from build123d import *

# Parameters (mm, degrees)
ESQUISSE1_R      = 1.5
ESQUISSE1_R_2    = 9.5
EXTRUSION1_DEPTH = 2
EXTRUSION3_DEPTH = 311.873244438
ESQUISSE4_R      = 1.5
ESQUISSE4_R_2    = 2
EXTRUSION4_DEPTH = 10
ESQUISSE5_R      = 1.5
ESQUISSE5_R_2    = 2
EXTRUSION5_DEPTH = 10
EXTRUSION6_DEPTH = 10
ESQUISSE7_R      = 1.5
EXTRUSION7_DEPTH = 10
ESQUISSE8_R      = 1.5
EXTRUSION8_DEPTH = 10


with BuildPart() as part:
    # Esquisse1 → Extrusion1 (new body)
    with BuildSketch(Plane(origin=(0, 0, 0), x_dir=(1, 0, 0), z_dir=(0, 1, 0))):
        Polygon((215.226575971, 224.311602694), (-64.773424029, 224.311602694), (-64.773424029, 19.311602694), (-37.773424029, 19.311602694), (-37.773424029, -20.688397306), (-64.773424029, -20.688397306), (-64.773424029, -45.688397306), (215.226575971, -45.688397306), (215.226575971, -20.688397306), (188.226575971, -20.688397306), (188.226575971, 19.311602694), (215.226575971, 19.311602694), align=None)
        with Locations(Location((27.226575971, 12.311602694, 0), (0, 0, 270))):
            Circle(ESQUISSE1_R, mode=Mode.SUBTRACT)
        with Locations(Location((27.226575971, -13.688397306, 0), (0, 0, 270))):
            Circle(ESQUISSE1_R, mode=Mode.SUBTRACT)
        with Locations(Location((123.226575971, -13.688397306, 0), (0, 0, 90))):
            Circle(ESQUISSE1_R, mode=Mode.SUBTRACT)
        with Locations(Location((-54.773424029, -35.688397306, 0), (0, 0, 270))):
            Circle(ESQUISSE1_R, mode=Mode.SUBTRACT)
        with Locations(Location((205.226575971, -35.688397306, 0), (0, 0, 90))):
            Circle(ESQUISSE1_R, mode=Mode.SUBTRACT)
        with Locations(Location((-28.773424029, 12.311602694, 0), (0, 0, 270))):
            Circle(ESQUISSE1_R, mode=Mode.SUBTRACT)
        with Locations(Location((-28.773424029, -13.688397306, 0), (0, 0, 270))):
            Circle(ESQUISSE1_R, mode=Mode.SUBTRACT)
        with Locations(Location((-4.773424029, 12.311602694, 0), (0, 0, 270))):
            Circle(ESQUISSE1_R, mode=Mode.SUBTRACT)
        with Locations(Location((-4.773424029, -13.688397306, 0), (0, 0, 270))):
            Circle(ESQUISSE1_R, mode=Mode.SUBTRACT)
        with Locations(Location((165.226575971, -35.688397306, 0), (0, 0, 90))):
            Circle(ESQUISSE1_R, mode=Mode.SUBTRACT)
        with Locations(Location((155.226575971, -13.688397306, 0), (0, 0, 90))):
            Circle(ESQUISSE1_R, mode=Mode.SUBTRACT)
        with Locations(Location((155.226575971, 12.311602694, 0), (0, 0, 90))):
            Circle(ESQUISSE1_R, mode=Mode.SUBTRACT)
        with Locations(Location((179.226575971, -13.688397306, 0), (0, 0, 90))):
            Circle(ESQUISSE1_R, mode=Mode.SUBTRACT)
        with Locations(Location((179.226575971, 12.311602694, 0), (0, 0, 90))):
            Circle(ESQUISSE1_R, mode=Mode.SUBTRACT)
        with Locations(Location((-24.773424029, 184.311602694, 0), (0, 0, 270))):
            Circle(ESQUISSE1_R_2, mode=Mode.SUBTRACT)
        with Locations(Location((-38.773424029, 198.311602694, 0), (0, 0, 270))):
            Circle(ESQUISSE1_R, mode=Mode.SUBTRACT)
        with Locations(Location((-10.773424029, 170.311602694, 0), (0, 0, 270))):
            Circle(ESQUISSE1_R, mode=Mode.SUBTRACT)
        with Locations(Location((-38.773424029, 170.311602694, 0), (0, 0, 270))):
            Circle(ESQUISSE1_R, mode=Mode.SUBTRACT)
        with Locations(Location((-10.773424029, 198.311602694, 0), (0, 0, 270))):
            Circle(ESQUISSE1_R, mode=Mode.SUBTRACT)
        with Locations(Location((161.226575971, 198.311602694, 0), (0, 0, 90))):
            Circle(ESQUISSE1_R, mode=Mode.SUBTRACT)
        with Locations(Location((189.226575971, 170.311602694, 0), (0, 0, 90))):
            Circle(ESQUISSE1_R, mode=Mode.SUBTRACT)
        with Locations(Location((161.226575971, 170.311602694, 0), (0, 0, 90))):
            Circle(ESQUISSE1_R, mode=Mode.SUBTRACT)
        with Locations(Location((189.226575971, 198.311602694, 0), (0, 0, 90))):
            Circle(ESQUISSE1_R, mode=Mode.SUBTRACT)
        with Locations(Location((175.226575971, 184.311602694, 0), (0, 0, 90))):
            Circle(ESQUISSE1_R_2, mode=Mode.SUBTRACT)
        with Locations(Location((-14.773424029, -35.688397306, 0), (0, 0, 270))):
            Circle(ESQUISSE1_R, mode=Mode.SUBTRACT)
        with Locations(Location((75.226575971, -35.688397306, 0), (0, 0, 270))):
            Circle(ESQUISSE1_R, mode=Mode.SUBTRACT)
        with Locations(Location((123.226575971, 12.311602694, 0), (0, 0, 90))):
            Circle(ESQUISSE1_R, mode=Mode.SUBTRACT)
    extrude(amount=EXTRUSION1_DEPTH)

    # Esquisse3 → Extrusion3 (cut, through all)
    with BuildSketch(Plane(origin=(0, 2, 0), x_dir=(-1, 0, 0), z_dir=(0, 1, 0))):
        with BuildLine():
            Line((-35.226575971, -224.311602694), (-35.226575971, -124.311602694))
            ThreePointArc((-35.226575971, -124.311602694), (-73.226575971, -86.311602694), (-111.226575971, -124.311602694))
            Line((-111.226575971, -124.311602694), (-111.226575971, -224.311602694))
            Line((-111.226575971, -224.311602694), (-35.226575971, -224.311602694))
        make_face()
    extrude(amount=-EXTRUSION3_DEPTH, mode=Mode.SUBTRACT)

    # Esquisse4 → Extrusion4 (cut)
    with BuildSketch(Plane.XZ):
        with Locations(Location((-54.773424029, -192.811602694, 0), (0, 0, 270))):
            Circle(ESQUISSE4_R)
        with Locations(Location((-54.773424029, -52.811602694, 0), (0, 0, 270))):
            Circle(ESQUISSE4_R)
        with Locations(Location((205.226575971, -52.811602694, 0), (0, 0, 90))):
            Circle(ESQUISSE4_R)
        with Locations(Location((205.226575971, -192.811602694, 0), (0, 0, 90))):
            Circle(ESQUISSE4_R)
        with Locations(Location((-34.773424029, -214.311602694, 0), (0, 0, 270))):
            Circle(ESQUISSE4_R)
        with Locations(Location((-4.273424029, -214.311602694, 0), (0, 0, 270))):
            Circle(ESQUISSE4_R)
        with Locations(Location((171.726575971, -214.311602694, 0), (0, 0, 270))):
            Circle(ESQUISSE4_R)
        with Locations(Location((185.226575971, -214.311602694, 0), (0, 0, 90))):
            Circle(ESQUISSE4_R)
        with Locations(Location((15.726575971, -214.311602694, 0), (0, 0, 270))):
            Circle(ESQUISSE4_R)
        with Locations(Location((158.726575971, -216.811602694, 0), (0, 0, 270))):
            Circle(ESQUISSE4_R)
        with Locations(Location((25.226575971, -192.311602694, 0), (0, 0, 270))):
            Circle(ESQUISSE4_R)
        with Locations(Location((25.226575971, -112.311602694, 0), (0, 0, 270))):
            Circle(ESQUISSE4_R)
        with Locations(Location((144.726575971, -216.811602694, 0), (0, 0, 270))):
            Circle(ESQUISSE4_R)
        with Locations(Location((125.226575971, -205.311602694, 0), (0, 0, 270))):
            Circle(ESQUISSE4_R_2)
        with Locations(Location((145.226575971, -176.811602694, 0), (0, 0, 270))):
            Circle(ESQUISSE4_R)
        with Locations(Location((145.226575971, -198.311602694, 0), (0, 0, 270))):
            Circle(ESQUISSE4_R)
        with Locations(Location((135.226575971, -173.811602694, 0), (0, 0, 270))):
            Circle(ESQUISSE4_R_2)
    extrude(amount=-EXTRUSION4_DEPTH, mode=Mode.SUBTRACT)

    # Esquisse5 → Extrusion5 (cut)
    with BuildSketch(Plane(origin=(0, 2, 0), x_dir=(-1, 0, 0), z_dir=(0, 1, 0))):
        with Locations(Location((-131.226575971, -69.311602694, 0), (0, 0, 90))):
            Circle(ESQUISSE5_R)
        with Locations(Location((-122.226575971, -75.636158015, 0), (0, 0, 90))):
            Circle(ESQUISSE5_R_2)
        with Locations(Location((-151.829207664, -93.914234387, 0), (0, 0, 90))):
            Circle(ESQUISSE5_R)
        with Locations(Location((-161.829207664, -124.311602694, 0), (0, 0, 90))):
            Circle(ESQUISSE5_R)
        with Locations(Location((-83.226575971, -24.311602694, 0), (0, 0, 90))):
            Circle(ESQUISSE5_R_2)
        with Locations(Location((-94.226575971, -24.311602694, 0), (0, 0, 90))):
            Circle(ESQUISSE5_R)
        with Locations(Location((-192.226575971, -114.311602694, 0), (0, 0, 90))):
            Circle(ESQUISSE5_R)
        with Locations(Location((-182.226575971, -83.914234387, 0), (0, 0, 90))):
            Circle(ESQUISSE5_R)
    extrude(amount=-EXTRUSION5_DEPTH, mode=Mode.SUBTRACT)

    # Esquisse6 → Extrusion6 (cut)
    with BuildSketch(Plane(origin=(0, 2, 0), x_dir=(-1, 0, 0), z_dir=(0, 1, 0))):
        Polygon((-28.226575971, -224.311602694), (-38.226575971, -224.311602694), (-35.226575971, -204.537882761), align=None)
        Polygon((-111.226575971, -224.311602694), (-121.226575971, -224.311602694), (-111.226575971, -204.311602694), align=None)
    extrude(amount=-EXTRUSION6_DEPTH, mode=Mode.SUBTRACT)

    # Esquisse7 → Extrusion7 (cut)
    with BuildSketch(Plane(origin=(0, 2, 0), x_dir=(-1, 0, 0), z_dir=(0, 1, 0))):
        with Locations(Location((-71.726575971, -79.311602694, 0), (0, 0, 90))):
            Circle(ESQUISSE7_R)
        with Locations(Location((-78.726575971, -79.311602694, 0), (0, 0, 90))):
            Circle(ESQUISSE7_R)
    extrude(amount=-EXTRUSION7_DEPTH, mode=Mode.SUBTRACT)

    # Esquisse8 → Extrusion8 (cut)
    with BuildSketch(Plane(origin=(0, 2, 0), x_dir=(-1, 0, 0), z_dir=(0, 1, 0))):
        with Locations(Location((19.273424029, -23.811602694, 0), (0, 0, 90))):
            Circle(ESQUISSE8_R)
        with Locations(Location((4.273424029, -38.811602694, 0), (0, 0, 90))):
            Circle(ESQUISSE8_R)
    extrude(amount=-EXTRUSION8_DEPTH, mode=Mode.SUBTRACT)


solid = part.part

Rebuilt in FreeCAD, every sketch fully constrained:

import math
import FreeCAD as App
import Part
import Sketcher
from FreeCAD import Vector

doc = App.newDocument("Part")
body = doc.addObject("PartDesign::Body", "Body")

sketch1 = body.newObject("Sketcher::SketchObject", "Sketch")
sketch1.AttachmentSupport = (doc.getObject("XZ_Plane"), [""])
sketch1.MapMode = "FlatFace"
sketch1.addGeometry(Part.LineSegment(Vector(215.2, -224.3, 0), Vector(-64.8, -224.3, 0)), False)
sketch1.addGeometry(Part.LineSegment(Vector(-64.8, -224.3, 0), Vector(-64.8, -19.3, 0)), False)
sketch1.addGeometry(Part.LineSegment(Vector(-64.8, -19.3, 0), Vector(-37.8, -19.3, 0)), False)
sketch1.addGeometry(Part.LineSegment(Vector(-37.8, -19.3, 0), Vector(-37.8, 20.7, 0)), False)
sketch1.addGeometry(Part.LineSegment(Vector(-37.8, 20.7, 0), Vector(-64.8, 20.7, 0)), False)
sketch1.addGeometry(Part.LineSegment(Vector(-64.8, 20.7, 0), Vector(-64.8, 45.7, 0)), False)
sketch1.addGeometry(Part.LineSegment(Vector(-64.8, 45.7, 0), Vector(215.2, 45.7, 0)), False)
sketch1.addGeometry(Part.LineSegment(Vector(215.2, 45.7, 0), Vector(215.2, 20.7, 0)), False)
sketch1.addGeometry(Part.LineSegment(Vector(215.2, 20.7, 0), Vector(188.2, 20.7, 0)), False)
sketch1.addGeometry(Part.LineSegment(Vector(188.2, 20.7, 0), Vector(188.2, -19.3, 0)), False)
sketch1.addGeometry(Part.LineSegment(Vector(188.2, -19.3, 0), Vector(215.2, -19.3, 0)), False)
sketch1.addGeometry(Part.LineSegment(Vector(215.2, -19.3, 0), Vector(215.2, -224.3, 0)), False)
sketch1.addGeometry(Part.Circle(Vector(-54.8, 35.7, 0), Vector(0, 0, 1), 1.5), False)
sketch1.addGeometry(Part.Circle(Vector(-28.8, 13.7, 0), Vector(0, 0, 1), 1.5), False)
sketch1.addGeometry(Part.Circle(Vector(-14.8, 35.7, 0), Vector(0, 0, 1), 1.5), False)
sketch1.addGeometry(Part.Circle(Vector(-4.8, 13.7, 0), Vector(0, 0, 1), 1.5), False)
sketch1.addGeometry(Part.Circle(Vector(-28.8, -12.3, 0), Vector(0, 0, 1), 1.5), False)
sketch1.addGeometry(Part.Circle(Vector(-4.8, -12.3, 0), Vector(0, 0, 1), 1.5), False)
sketch1.addGeometry(Part.Circle(Vector(27.2, 13.7, 0), Vector(0, 0, 1), 1.5), False)
sketch1.addGeometry(Part.Circle(Vector(27.2, -12.3, 0), Vector(0, 0, 1), 1.5), False)
sketch1.addGeometry(Part.Circle(Vector(75.2, 35.7, 0), Vector(0, 0, 1), 1.5), False)
sketch1.addGeometry(Part.Circle(Vector(123.2, 13.7, 0), Vector(0, 0, 1), 1.5), False)
sketch1.addGeometry(Part.Circle(Vector(123.2, -12.3, 0), Vector(0, 0, 1), 1.5), False)
sketch1.addGeometry(Part.Circle(Vector(165.2, 35.7, 0), Vector(0, 0, 1), 1.5), False)
sketch1.addGeometry(Part.Circle(Vector(155.2, 13.7, 0), Vector(0, 0, 1), 1.5), False)
sketch1.addGeometry(Part.Circle(Vector(205.2, 35.7, 0), Vector(0, 0, 1), 1.5), False)
sketch1.addGeometry(Part.Circle(Vector(179.2, 13.7, 0), Vector(0, 0, 1), 1.5), False)
sketch1.addGeometry(Part.Circle(Vector(155.2, -12.3, 0), Vector(0, 0, 1), 1.5), False)
sketch1.addGeometry(Part.Circle(Vector(179.2, -12.3, 0), Vector(0, 0, 1), 1.5), False)
sketch1.addGeometry(Part.Circle(Vector(-38.8, -170.3, 0), Vector(0, 0, 1), 1.5), False)
sketch1.addGeometry(Part.Circle(Vector(-24.8, -184.3, 0), Vector(0, 0, 1), 9.5), False)
sketch1.addGeometry(Part.Circle(Vector(-38.8, -198.3, 0), Vector(0, 0, 1), 1.5), False)
sketch1.addGeometry(Part.Circle(Vector(-10.8, -170.3, 0), Vector(0, 0, 1), 1.5), False)
sketch1.addGeometry(Part.Circle(Vector(-10.8, -198.3, 0), Vector(0, 0, 1), 1.5), False)
sketch1.addGeometry(Part.Circle(Vector(161.2, -170.3, 0), Vector(0, 0, 1), 1.5), False)
sketch1.addGeometry(Part.Circle(Vector(161.2, -198.3, 0), Vector(0, 0, 1), 1.5), False)
sketch1.addGeometry(Part.Circle(Vector(189.2, -170.3, 0), Vector(0, 0, 1), 1.5), False)
sketch1.addGeometry(Part.Circle(Vector(175.2, -184.3, 0), Vector(0, 0, 1), 9.5), False)
sketch1.addGeometry(Part.Circle(Vector(189.2, -198.3, 0), Vector(0, 0, 1), 1.5), False)
sketch1.addConstraint(Sketcher.Constraint("Coincident", 0, 2, 1, 1))
sketch1.addConstraint(Sketcher.Constraint("Coincident", 1, 2, 2, 1))
sketch1.addConstraint(Sketcher.Constraint("Coincident", 2, 2, 3, 1))
sketch1.addConstraint(Sketcher.Constraint("Coincident", 3, 2, 4, 1))
sketch1.addConstraint(Sketcher.Constraint("Coincident", 4, 2, 5, 1))
sketch1.addConstraint(Sketcher.Constraint("Coincident", 5, 2, 6, 1))
sketch1.addConstraint(Sketcher.Constraint("Coincident", 6, 2, 7, 1))
sketch1.addConstraint(Sketcher.Constraint("Coincident", 7, 2, 8, 1))
sketch1.addConstraint(Sketcher.Constraint("Coincident", 8, 2, 9, 1))
sketch1.addConstraint(Sketcher.Constraint("Coincident", 9, 2, 10, 1))
sketch1.addConstraint(Sketcher.Constraint("Coincident", 10, 2, 11, 1))
sketch1.addConstraint(Sketcher.Constraint("Coincident", 11, 2, 0, 1))
sketch1.addConstraint(Sketcher.Constraint("Horizontal", 0))
sketch1.addConstraint(Sketcher.Constraint("Vertical", 1))
sketch1.addConstraint(Sketcher.Constraint("Horizontal", 2))
sketch1.addConstraint(Sketcher.Constraint("Vertical", 3))
sketch1.addConstraint(Sketcher.Constraint("Horizontal", 4))
sketch1.addConstraint(Sketcher.Constraint("Vertical", 5))
sketch1.addConstraint(Sketcher.Constraint("Horizontal", 6))
sketch1.addConstraint(Sketcher.Constraint("Vertical", 7))
sketch1.addConstraint(Sketcher.Constraint("Horizontal", 8))
sketch1.addConstraint(Sketcher.Constraint("Vertical", 9))
sketch1.addConstraint(Sketcher.Constraint("Horizontal", 10))
sketch1.addConstraint(Sketcher.Constraint("Vertical", 11))
sketch1.addConstraint(Sketcher.Constraint("Equal", 12, 13))
sketch1.addConstraint(Sketcher.Constraint("Equal", 13, 14))
sketch1.addConstraint(Sketcher.Constraint("Equal", 14, 15))
sketch1.addConstraint(Sketcher.Constraint("Equal", 15, 16))
sketch1.addConstraint(Sketcher.Constraint("Equal", 16, 17))
sketch1.addConstraint(Sketcher.Constraint("Equal", 17, 18))
sketch1.addConstraint(Sketcher.Constraint("Equal", 18, 19))
sketch1.addConstraint(Sketcher.Constraint("Equal", 19, 20))
sketch1.addConstraint(Sketcher.Constraint("Equal", 20, 21))
sketch1.addConstraint(Sketcher.Constraint("Equal", 21, 22))
sketch1.addConstraint(Sketcher.Constraint("Equal", 22, 23))
sketch1.addConstraint(Sketcher.Constraint("Equal", 23, 24))
sketch1.addConstraint(Sketcher.Constraint("Equal", 24, 25))
sketch1.addConstraint(Sketcher.Constraint("Equal", 25, 26))
sketch1.addConstraint(Sketcher.Constraint("Equal", 26, 27))
sketch1.addConstraint(Sketcher.Constraint("Equal", 27, 28))
sketch1.addConstraint(Sketcher.Constraint("Equal", 28, 29))
sketch1.addConstraint(Sketcher.Constraint("Equal", 29, 31))
sketch1.addConstraint(Sketcher.Constraint("Equal", 31, 32))
sketch1.addConstraint(Sketcher.Constraint("Equal", 32, 33))
sketch1.addConstraint(Sketcher.Constraint("Equal", 33, 34))
sketch1.addConstraint(Sketcher.Constraint("Equal", 34, 35))
sketch1.addConstraint(Sketcher.Constraint("Equal", 35, 36))
sketch1.addConstraint(Sketcher.Constraint("Equal", 30, 37))
sketch1.addConstraint(Sketcher.Constraint("Equal", 36, 38))
sketch1.addConstraint(Sketcher.Constraint("Horizontal", 12, 3, 14, 3))
sketch1.addConstraint(Sketcher.Constraint("Horizontal", 13, 3, 15, 3))
sketch1.addConstraint(Sketcher.Constraint("Horizontal", 16, 3, 17, 3))
sketch1.addConstraint(Sketcher.Constraint("Horizontal", 15, 3, 18, 3))
sketch1.addConstraint(Sketcher.Constraint("Horizontal", 17, 3, 19, 3))
sketch1.addConstraint(Sketcher.Constraint("Horizontal", 14, 3, 20, 3))
sketch1.addConstraint(Sketcher.Constraint("Horizontal", 18, 3, 21, 3))
sketch1.addConstraint(Sketcher.Constraint("Horizontal", 19, 3, 22, 3))
sketch1.addConstraint(Sketcher.Constraint("Horizontal", 20, 3, 23, 3))
sketch1.addConstraint(Sketcher.Constraint("Horizontal", 21, 3, 24, 3))
sketch1.addConstraint(Sketcher.Constraint("Horizontal", 23, 3, 25, 3))
sketch1.addConstraint(Sketcher.Constraint("Horizontal", 24, 3, 26, 3))
sketch1.addConstraint(Sketcher.Constraint("Horizontal", 22, 3, 27, 3))
sketch1.addConstraint(Sketcher.Constraint("Horizontal", 27, 3, 28, 3))
sketch1.addConstraint(Sketcher.Constraint("Horizontal", 29, 3, 32, 3))
sketch1.addConstraint(Sketcher.Constraint("Horizontal", 31, 3, 33, 3))
sketch1.addConstraint(Sketcher.Constraint("Horizontal", 32, 3, 34, 3))
sketch1.addConstraint(Sketcher.Constraint("Horizontal", 33, 3, 35, 3))
sketch1.addConstraint(Sketcher.Constraint("Horizontal", 34, 3, 36, 3))
sketch1.addConstraint(Sketcher.Constraint("Horizontal", 30, 3, 37, 3))
sketch1.addConstraint(Sketcher.Constraint("Horizontal", 35, 3, 38, 3))
sketch1.addConstraint(Sketcher.Constraint("Horizontal", 4, 2, 7, 2))
sketch1.addConstraint(Sketcher.Constraint("Horizontal", 2, 2, 9, 2))
sketch1.addConstraint(Sketcher.Constraint("Vertical", 13, 3, 16, 3))
sketch1.addConstraint(Sketcher.Constraint("Vertical", 15, 3, 17, 3))
sketch1.addConstraint(Sketcher.Constraint("Vertical", 18, 3, 19, 3))
sketch1.addConstraint(Sketcher.Constraint("Vertical", 21, 3, 22, 3))
sketch1.addConstraint(Sketcher.Constraint("Vertical", 24, 3, 27, 3))
sketch1.addConstraint(Sketcher.Constraint("Vertical", 26, 3, 28, 3))
sketch1.addConstraint(Sketcher.Constraint("Vertical", 29, 3, 31, 3))
sketch1.addConstraint(Sketcher.Constraint("Vertical", 32, 3, 33, 3))
sketch1.addConstraint(Sketcher.Constraint("Vertical", 34, 3, 35, 3))
sketch1.addConstraint(Sketcher.Constraint("Vertical", 36, 3, 38, 3))
sketch1.addConstraint(Sketcher.Constraint("Vertical", 1, 2, 4, 2))
sketch1.addConstraint(Sketcher.Constraint("Vertical", 7, 2, 10, 2))
sketch1.addConstraint(Sketcher.Constraint("Equal", 4, 8))
sketch1.addConstraint(Sketcher.Constraint("Diameter", 12, 3.0))
sketch1.addConstraint(Sketcher.Constraint("Diameter", 30, 19.0))
sketch1.addConstraint(Sketcher.Constraint("DistanceX", 0, 2, 0, 1, 280.0))
sketch1.addConstraint(Sketcher.Constraint("DistanceX", 2, 1, 2, 2, 27.0))
sketch1.addConstraint(Sketcher.Constraint("DistanceY", 1, 1, 1, 2, 205.0))
sketch1.addConstraint(Sketcher.Constraint("DistanceY", 3, 1, 3, 2, 40.0))
sketch1.addConstraint(Sketcher.Constraint("DistanceY", 5, 1, 5, 2, 25.0))
sketch1.addConstraint(Sketcher.Constraint("DistanceX", 12, 3, 13, 3, 26.0))
sketch1.addConstraint(Sketcher.Constraint("DistanceY", 13, 3, 12, 3, 22.0))
sketch1.addConstraint(Sketcher.Constraint("DistanceX", 13, 3, 14, 3, 14.0))
sketch1.addConstraint(Sketcher.Constraint("DistanceX", 13, 3, 15, 3, 24.0))
sketch1.addConstraint(Sketcher.Constraint("DistanceY", 16, 3, 13, 3, 26.0))
sketch1.addConstraint(Sketcher.Constraint("DistanceX", 15, 3, 18, 3, 32.0))
sketch1.addConstraint(Sketcher.Constraint("DistanceX", 18, 3, 20, 3, 48.0))
sketch1.addConstraint(Sketcher.Constraint("DistanceX", 20, 3, 21, 3, 48.0))
sketch1.addConstraint(Sketcher.Constraint("DistanceX", 21, 3, 23, 3, 42.0))
sketch1.addConstraint(Sketcher.Constraint("DistanceX", 24, 3, 23, 3, 10.0))
sketch1.addConstraint(Sketcher.Constraint("DistanceX", 23, 3, 25, 3, 40.0))
sketch1.addConstraint(Sketcher.Constraint("DistanceX", 24, 3, 26, 3, 24.0))
sketch1.addConstraint(Sketcher.Constraint("DistanceX", 29, 3, 16, 3, 10.0))
sketch1.addConstraint(Sketcher.Constraint("DistanceY", 29, 3, 16, 3, 158.0))
sketch1.addConstraint(Sketcher.Constraint("DistanceX", 29, 3, 30, 3, 14.0))
sketch1.addConstraint(Sketcher.Constraint("DistanceY", 30, 3, 29, 3, 14.0))
sketch1.addConstraint(Sketcher.Constraint("DistanceY", 31, 3, 30, 3, 14.0))
sketch1.addConstraint(Sketcher.Constraint("DistanceX", 30, 3, 32, 3, 14.0))
sketch1.addConstraint(Sketcher.Constraint("DistanceX", 27, 3, 34, 3, 6.0))
sketch1.addConstraint(Sketcher.Constraint("DistanceX", 34, 3, 36, 3, 28.0))
sketch1.addConstraint(Sketcher.Constraint("DistanceX", 34, 3, 37, 3, 14.0))
sketch1.addConstraint(Sketcher.Constraint("DistanceX", 0, 2, 31, 3, 26.0))
sketch1.addConstraint(Sketcher.Constraint("DistanceY", 0, 2, 31, 3, 26.0))
sketch1.addConstraint(Sketcher.Constraint("DistanceX", 12, 3, -1, 1, 54.773424))
sketch1.addConstraint(Sketcher.Constraint("DistanceY", -1, 1, 12, 3, 35.688397))
pad1 = body.newObject("PartDesign::Pad", "Pad")
pad1.Profile = sketch1
pad1.Length = 2
pad1.Reversed = True

sketch2 = body.newObject("Sketcher::SketchObject", "Sketch001")
sketch2.AttachmentSupport = (doc.getObject("XZ_Plane"), [""])
sketch2.MapMode = "FlatFace"
sketch2.AttachmentOffset = App.Placement(Vector(0, 0, -2), App.Rotation())
sketch2.addGeometry(Part.LineSegment(Vector(35, -224, 0), Vector(35, -124, 0)), False)
sketch2.addGeometry(Part.ArcOfCircle(Part.Circle(Vector(73, -124, 0), Vector(0, 0, 1), 38), math.radians(0), math.radians(180)), False)
sketch2.addGeometry(Part.LineSegment(Vector(111, -124, 0), Vector(111, -224, 0)), False)
sketch2.addGeometry(Part.LineSegment(Vector(111, -224, 0), Vector(35, -224, 0)), False)
sketch2.addConstraint(Sketcher.Constraint("Tangent", 0, 2, 1, 2))
sketch2.addConstraint(Sketcher.Constraint("Tangent", 1, 1, 2, 1))
sketch2.addConstraint(Sketcher.Constraint("Coincident", 2, 2, 3, 1))
sketch2.addConstraint(Sketcher.Constraint("Coincident", 3, 2, 0, 1))
sketch2.addConstraint(Sketcher.Constraint("Vertical", 0))
sketch2.addConstraint(Sketcher.Constraint("Vertical", 2))
sketch2.addConstraint(Sketcher.Constraint("Horizontal", 3))
sketch2.addConstraint(Sketcher.Constraint("Radius", 1, 38.0))
sketch2.addConstraint(Sketcher.Constraint("DistanceY", 0, 1, 0, 2, 100.0))
sketch2.addConstraint(Sketcher.Constraint("DistanceX", -1, 1, 1, 3, 73.226576))
sketch2.addConstraint(Sketcher.Constraint("DistanceY", 1, 3, -1, 1, 124.311603))
pocket1 = body.newObject("PartDesign::Pocket", "Pocket")
pocket1.Profile = sketch2
pocket1.Type = "ThroughAll"
pocket1.Reversed = True

sketch3 = body.newObject("Sketcher::SketchObject", "Sketch002")
sketch3.AttachmentSupport = (doc.getObject("XZ_Plane"), [""])
sketch3.MapMode = "FlatFace"
sketch3.addGeometry(Part.Circle(Vector(-54.8, -192.8, 0), Vector(0, 0, 1), 1.5), False)
sketch3.addGeometry(Part.Circle(Vector(-54.8, -52.8, 0), Vector(0, 0, 1), 1.5), False)
sketch3.addGeometry(Part.Circle(Vector(205.2, -52.8, 0), Vector(0, 0, 1), 1.5), False)
sketch3.addGeometry(Part.Circle(Vector(205.2, -192.8, 0), Vector(0, 0, 1), 1.5), False)
sketch3.addGeometry(Part.Circle(Vector(-34.8, -214.3, 0), Vector(0, 0, 1), 1.5), False)
sketch3.addGeometry(Part.Circle(Vector(-4.3, -214.3, 0), Vector(0, 0, 1), 1.5), False)
sketch3.addGeometry(Part.Circle(Vector(171.7, -214.3, 0), Vector(0, 0, 1), 1.5), False)
sketch3.addGeometry(Part.Circle(Vector(185.2, -214.3, 0), Vector(0, 0, 1), 1.5), False)
sketch3.addGeometry(Part.Circle(Vector(15.7, -214.3, 0), Vector(0, 0, 1), 1.5), False)
sketch3.addGeometry(Part.Circle(Vector(158.7, -216.8, 0), Vector(0, 0, 1), 1.5), False)
sketch3.addGeometry(Part.Circle(Vector(25.2, -192.3, 0), Vector(0, 0, 1), 1.5), False)
sketch3.addGeometry(Part.Circle(Vector(25.2, -112.3, 0), Vector(0, 0, 1), 1.5), False)
sketch3.addGeometry(Part.Circle(Vector(144.7, -216.8, 0), Vector(0, 0, 1), 1.5), False)
sketch3.addGeometry(Part.Circle(Vector(125.2, -205.3, 0), Vector(0, 0, 1), 2), False)
sketch3.addGeometry(Part.Circle(Vector(145.2, -176.8, 0), Vector(0, 0, 1), 1.5), False)
sketch3.addGeometry(Part.Circle(Vector(145.2, -198.3, 0), Vector(0, 0, 1), 1.5), False)
sketch3.addGeometry(Part.Circle(Vector(135.2, -173.8, 0), Vector(0, 0, 1), 2), False)
sketch3.addConstraint(Sketcher.Constraint("Equal", 0, 1))
sketch3.addConstraint(Sketcher.Constraint("Equal", 1, 2))
sketch3.addConstraint(Sketcher.Constraint("Equal", 2, 3))
sketch3.addConstraint(Sketcher.Constraint("Equal", 3, 4))
sketch3.addConstraint(Sketcher.Constraint("Equal", 4, 5))
sketch3.addConstraint(Sketcher.Constraint("Equal", 5, 6))
sketch3.addConstraint(Sketcher.Constraint("Equal", 6, 7))
sketch3.addConstraint(Sketcher.Constraint("Equal", 7, 8))
sketch3.addConstraint(Sketcher.Constraint("Equal", 8, 9))
sketch3.addConstraint(Sketcher.Constraint("Equal", 9, 10))
sketch3.addConstraint(Sketcher.Constraint("Equal", 10, 11))
sketch3.addConstraint(Sketcher.Constraint("Equal", 11, 12))
sketch3.addConstraint(Sketcher.Constraint("Equal", 12, 14))
sketch3.addConstraint(Sketcher.Constraint("Equal", 14, 15))
sketch3.addConstraint(Sketcher.Constraint("Equal", 13, 16))
sketch3.addConstraint(Sketcher.Constraint("Horizontal", 1, 3, 2, 3))
sketch3.addConstraint(Sketcher.Constraint("Horizontal", 0, 3, 3, 3))
sketch3.addConstraint(Sketcher.Constraint("Horizontal", 4, 3, 5, 3))
sketch3.addConstraint(Sketcher.Constraint("Horizontal", 5, 3, 6, 3))
sketch3.addConstraint(Sketcher.Constraint("Horizontal", 6, 3, 7, 3))
sketch3.addConstraint(Sketcher.Constraint("Horizontal", 7, 3, 8, 3))
sketch3.addConstraint(Sketcher.Constraint("Horizontal", 9, 3, 12, 3))
sketch3.addConstraint(Sketcher.Constraint("Vertical", 0, 3, 1, 3))
sketch3.addConstraint(Sketcher.Constraint("Vertical", 2, 3, 3, 3))
sketch3.addConstraint(Sketcher.Constraint("Vertical", 10, 3, 11, 3))
sketch3.addConstraint(Sketcher.Constraint("Vertical", 14, 3, 15, 3))
sketch3.addConstraint(Sketcher.Constraint("Diameter", 0, 3.0))
sketch3.addConstraint(Sketcher.Constraint("Diameter", 13, 4.0))
sketch3.addConstraint(Sketcher.Constraint("DistanceY", 0, 3, 1, 3, 140.0))
sketch3.addConstraint(Sketcher.Constraint("DistanceX", 1, 3, 2, 3, 260.0))
sketch3.addConstraint(Sketcher.Constraint("DistanceX", 0, 3, 4, 3, 20.0))
sketch3.addConstraint(Sketcher.Constraint("DistanceX", 5, 3, 6, 3, 176.0))
sketch3.addConstraint(Sketcher.Constraint("DistanceX", 7, 3, 3, 3, 20.0))
sketch3.addConstraint(Sketcher.Constraint("DistanceX", 5, 3, 8, 3, 20.0))
sketch3.addConstraint(Sketcher.Constraint("DistanceX", 9, 3, 6, 3, 13.0))
sketch3.addConstraint(Sketcher.Constraint("DistanceY", 9, 3, 3, 3, 24.0))
sketch3.addConstraint(Sketcher.Constraint("DistanceY", 8, 3, 10, 3, 22.0))
sketch3.addConstraint(Sketcher.Constraint("DistanceX", 4, 3, 10, 3, 60.0))
sketch3.addConstraint(Sketcher.Constraint("DistanceY", 10, 3, 11, 3, 80.0))
sketch3.addConstraint(Sketcher.Constraint("DistanceX", 12, 3, 9, 3, 14.0))
sketch3.addConstraint(Sketcher.Constraint("DistanceY", 6, 3, 13, 3, 9.0))
sketch3.addConstraint(Sketcher.Constraint("DistanceX", 13, 3, 7, 3, 60.0))
sketch3.addConstraint(Sketcher.Constraint("DistanceX", 13, 3, 14, 3, 20.0))
sketch3.addConstraint(Sketcher.Constraint("DistanceY", 12, 3, 14, 3, 40.0))
sketch3.addConstraint(Sketcher.Constraint("DistanceY", 13, 3, 15, 3, 7.0))
sketch3.addConstraint(Sketcher.Constraint("DistanceX", 16, 3, 14, 3, 10.0))
sketch3.addConstraint(Sketcher.Constraint("DistanceY", 14, 3, 16, 3, 3.0))
sketch3.addConstraint(Sketcher.Constraint("DistanceY", 4, 3, 0, 3, 21.5))
sketch3.addConstraint(Sketcher.Constraint("DistanceX", 4, 3, 5, 3, 30.5))
sketch3.addConstraint(Sketcher.Constraint("DistanceX", 0, 3, -1, 1, 54.773424))
sketch3.addConstraint(Sketcher.Constraint("DistanceY", 0, 3, -1, 1, 192.811603))
pocket2 = body.newObject("PartDesign::Pocket", "Pocket001")
pocket2.Profile = sketch3
pocket2.Length = 10

sketch4 = body.newObject("Sketcher::SketchObject", "Sketch003")
sketch4.AttachmentSupport = (doc.getObject("XZ_Plane"), [""])
sketch4.MapMode = "FlatFace"
sketch4.AttachmentOffset = App.Placement(Vector(0, 0, -2), App.Rotation())
sketch4.addGeometry(Part.Circle(Vector(131.2, -69.3, 0), Vector(0, 0, 1), 1.5), False)
sketch4.addGeometry(Part.Circle(Vector(122.2, -75.6, 0), Vector(0, 0, 1), 2), False)
sketch4.addGeometry(Part.Circle(Vector(151.8, -93.9, 0), Vector(0, 0, 1), 1.5), False)
sketch4.addGeometry(Part.Circle(Vector(161.8, -124.3, 0), Vector(0, 0, 1), 1.5), False)
sketch4.addGeometry(Part.Circle(Vector(83.2, -24.3, 0), Vector(0, 0, 1), 2), False)
sketch4.addGeometry(Part.Circle(Vector(94.2, -24.3, 0), Vector(0, 0, 1), 1.5), False)
sketch4.addGeometry(Part.Circle(Vector(192.2, -114.3, 0), Vector(0, 0, 1), 1.5), False)
sketch4.addGeometry(Part.Circle(Vector(182.2, -83.9, 0), Vector(0, 0, 1), 1.5), False)
sketch4.addConstraint(Sketcher.Constraint("Equal", 0, 2))
sketch4.addConstraint(Sketcher.Constraint("Equal", 2, 3))
sketch4.addConstraint(Sketcher.Constraint("Equal", 1, 4))
sketch4.addConstraint(Sketcher.Constraint("Equal", 3, 5))
sketch4.addConstraint(Sketcher.Constraint("Equal", 5, 6))
sketch4.addConstraint(Sketcher.Constraint("Equal", 6, 7))
sketch4.addConstraint(Sketcher.Constraint("Horizontal", 4, 3, 5, 3))
sketch4.addConstraint(Sketcher.Constraint("Diameter", 0, 3.0))
sketch4.addConstraint(Sketcher.Constraint("Diameter", 1, 4.0))
sketch4.addConstraint(Sketcher.Constraint("DistanceX", 1, 3, 0, 3, 9.0))
sketch4.addConstraint(Sketcher.Constraint("DistanceX", 2, 3, 3, 3, 10.0))
sketch4.addConstraint(Sketcher.Constraint("DistanceY", 3, 3, 0, 3, 55.0))
sketch4.addConstraint(Sketcher.Constraint("DistanceX", 4, 3, 1, 3, 39.0))
sketch4.addConstraint(Sketcher.Constraint("DistanceY", 0, 3, 4, 3, 45.0))
sketch4.addConstraint(Sketcher.Constraint("DistanceX", 4, 3, 5, 3, 11.0))
sketch4.addConstraint(Sketcher.Constraint("DistanceY", 3, 3, 6, 3, 10.0))
sketch4.addConstraint(Sketcher.Constraint("DistanceX", 0, 3, 6, 3, 61.0))
sketch4.addConstraint(Sketcher.Constraint("DistanceY", 2, 3, 7, 3, 10.0))
sketch4.addConstraint(Sketcher.Constraint("DistanceX", 7, 3, 6, 3, 10.0))
sketch4.addConstraint(Sketcher.Constraint("DistanceY", 1, 3, -1, 1, 75.636158))
sketch4.addConstraint(Sketcher.Constraint("DistanceX", 0, 3, 2, 3, 20.602632))
sketch4.addConstraint(Sketcher.Constraint("DistanceY", 2, 3, 0, 3, 24.602632))
sketch4.addConstraint(Sketcher.Constraint("DistanceX", -1, 1, 0, 3, 131.226576))
sketch4.addConstraint(Sketcher.Constraint("DistanceY", 0, 3, -1, 1, 69.311603))
pocket3 = body.newObject("PartDesign::Pocket", "Pocket002")
pocket3.Profile = sketch4
pocket3.Length = 10
pocket3.Reversed = True

sketch5 = body.newObject("Sketcher::SketchObject", "Sketch004")
sketch5.AttachmentSupport = (doc.getObject("XZ_Plane"), [""])
sketch5.MapMode = "FlatFace"
sketch5.AttachmentOffset = App.Placement(Vector(0, 0, -2), App.Rotation())
sketch5.addGeometry(Part.LineSegment(Vector(38, -224, 0), Vector(28, -224, 0)), False)
sketch5.addGeometry(Part.LineSegment(Vector(28, -224, 0), Vector(35, -205, 0)), False)
sketch5.addGeometry(Part.LineSegment(Vector(35, -205, 0), Vector(38, -224, 0)), False)
sketch5.addGeometry(Part.LineSegment(Vector(121, -224, 0), Vector(111, -224, 0)), False)
sketch5.addGeometry(Part.LineSegment(Vector(111, -224, 0), Vector(111, -204, 0)), False)
sketch5.addGeometry(Part.LineSegment(Vector(111, -204, 0), Vector(121, -224, 0)), False)
sketch5.addConstraint(Sketcher.Constraint("Coincident", 0, 2, 1, 1))
sketch5.addConstraint(Sketcher.Constraint("Coincident", 1, 2, 2, 1))
sketch5.addConstraint(Sketcher.Constraint("Coincident", 2, 2, 0, 1))
sketch5.addConstraint(Sketcher.Constraint("Coincident", 3, 2, 4, 1))
sketch5.addConstraint(Sketcher.Constraint("Coincident", 4, 2, 5, 1))
sketch5.addConstraint(Sketcher.Constraint("Coincident", 5, 2, 3, 1))
sketch5.addConstraint(Sketcher.Constraint("Horizontal", 0))
sketch5.addConstraint(Sketcher.Constraint("Horizontal", 3))
sketch5.addConstraint(Sketcher.Constraint("Vertical", 4))
sketch5.addConstraint(Sketcher.Constraint("Horizontal", 2, 2, 3, 2))
sketch5.addConstraint(Sketcher.Constraint("Equal", 0, 3))
sketch5.addConstraint(Sketcher.Constraint("DistanceX", 0, 2, 0, 1, 10.0))
sketch5.addConstraint(Sketcher.Constraint("DistanceY", 4, 1, 4, 2, 20.0))
sketch5.addConstraint(Sketcher.Constraint("Distance", 2, 20.0))
sketch5.addConstraint(Sketcher.Constraint("DistanceX", 0, 2, 1, 2, 7.0))
sketch5.addConstraint(Sketcher.Constraint("DistanceX", 2, 2, 3, 2, 73.0))
sketch5.addConstraint(Sketcher.Constraint("DistanceX", -1, 1, 0, 2, 28.226576))
sketch5.addConstraint(Sketcher.Constraint("DistanceY", 0, 2, -1, 1, 224.311603))
pocket4 = body.newObject("PartDesign::Pocket", "Pocket003")
pocket4.Profile = sketch5
pocket4.Length = 10
pocket4.Reversed = True

sketch6 = body.newObject("Sketcher::SketchObject", "Sketch005")
sketch6.AttachmentSupport = (doc.getObject("XZ_Plane"), [""])
sketch6.MapMode = "FlatFace"
sketch6.AttachmentOffset = App.Placement(Vector(0, 0, -2), App.Rotation())
sketch6.addGeometry(Part.Circle(Vector(71.7, -79.3, 0), Vector(0, 0, 1), 1.5), False)
sketch6.addGeometry(Part.Circle(Vector(78.7, -79.3, 0), Vector(0, 0, 1), 1.5), False)
sketch6.addConstraint(Sketcher.Constraint("Equal", 0, 1))
sketch6.addConstraint(Sketcher.Constraint("Horizontal", 0, 3, 1, 3))
sketch6.addConstraint(Sketcher.Constraint("Diameter", 0, 3.0))
sketch6.addConstraint(Sketcher.Constraint("DistanceX", 0, 3, 1, 3, 7.0))
sketch6.addConstraint(Sketcher.Constraint("DistanceX", -1, 1, 0, 3, 71.726576))
sketch6.addConstraint(Sketcher.Constraint("DistanceY", 0, 3, -1, 1, 79.311603))
pocket5 = body.newObject("PartDesign::Pocket", "Pocket004")
pocket5.Profile = sketch6
pocket5.Length = 10
pocket5.Reversed = True

sketch7 = body.newObject("Sketcher::SketchObject", "Sketch006")
sketch7.AttachmentSupport = (doc.getObject("XZ_Plane"), [""])
sketch7.MapMode = "FlatFace"
sketch7.AttachmentOffset = App.Placement(Vector(0, 0, -2), App.Rotation())
sketch7.addGeometry(Part.Circle(Vector(-19.3, -23.8, 0), Vector(0, 0, 1), 1.5), False)
sketch7.addGeometry(Part.Circle(Vector(-4.3, -38.8, 0), Vector(0, 0, 1), 1.5), False)
sketch7.addConstraint(Sketcher.Constraint("Equal", 0, 1))
sketch7.addConstraint(Sketcher.Constraint("Diameter", 0, 3.0))
sketch7.addConstraint(Sketcher.Constraint("DistanceX", 0, 3, 1, 3, 15.0))
sketch7.addConstraint(Sketcher.Constraint("DistanceY", 1, 3, 0, 3, 15.0))
sketch7.addConstraint(Sketcher.Constraint("DistanceX", 0, 3, -1, 1, 19.273424))
sketch7.addConstraint(Sketcher.Constraint("DistanceY", 0, 3, -1, 1, 23.811603))
pocket6 = body.newObject("PartDesign::Pocket", "Pocket005")
pocket6.Profile = sketch7
pocket6.Length = 10
pocket6.Reversed = True

doc.recompute()
